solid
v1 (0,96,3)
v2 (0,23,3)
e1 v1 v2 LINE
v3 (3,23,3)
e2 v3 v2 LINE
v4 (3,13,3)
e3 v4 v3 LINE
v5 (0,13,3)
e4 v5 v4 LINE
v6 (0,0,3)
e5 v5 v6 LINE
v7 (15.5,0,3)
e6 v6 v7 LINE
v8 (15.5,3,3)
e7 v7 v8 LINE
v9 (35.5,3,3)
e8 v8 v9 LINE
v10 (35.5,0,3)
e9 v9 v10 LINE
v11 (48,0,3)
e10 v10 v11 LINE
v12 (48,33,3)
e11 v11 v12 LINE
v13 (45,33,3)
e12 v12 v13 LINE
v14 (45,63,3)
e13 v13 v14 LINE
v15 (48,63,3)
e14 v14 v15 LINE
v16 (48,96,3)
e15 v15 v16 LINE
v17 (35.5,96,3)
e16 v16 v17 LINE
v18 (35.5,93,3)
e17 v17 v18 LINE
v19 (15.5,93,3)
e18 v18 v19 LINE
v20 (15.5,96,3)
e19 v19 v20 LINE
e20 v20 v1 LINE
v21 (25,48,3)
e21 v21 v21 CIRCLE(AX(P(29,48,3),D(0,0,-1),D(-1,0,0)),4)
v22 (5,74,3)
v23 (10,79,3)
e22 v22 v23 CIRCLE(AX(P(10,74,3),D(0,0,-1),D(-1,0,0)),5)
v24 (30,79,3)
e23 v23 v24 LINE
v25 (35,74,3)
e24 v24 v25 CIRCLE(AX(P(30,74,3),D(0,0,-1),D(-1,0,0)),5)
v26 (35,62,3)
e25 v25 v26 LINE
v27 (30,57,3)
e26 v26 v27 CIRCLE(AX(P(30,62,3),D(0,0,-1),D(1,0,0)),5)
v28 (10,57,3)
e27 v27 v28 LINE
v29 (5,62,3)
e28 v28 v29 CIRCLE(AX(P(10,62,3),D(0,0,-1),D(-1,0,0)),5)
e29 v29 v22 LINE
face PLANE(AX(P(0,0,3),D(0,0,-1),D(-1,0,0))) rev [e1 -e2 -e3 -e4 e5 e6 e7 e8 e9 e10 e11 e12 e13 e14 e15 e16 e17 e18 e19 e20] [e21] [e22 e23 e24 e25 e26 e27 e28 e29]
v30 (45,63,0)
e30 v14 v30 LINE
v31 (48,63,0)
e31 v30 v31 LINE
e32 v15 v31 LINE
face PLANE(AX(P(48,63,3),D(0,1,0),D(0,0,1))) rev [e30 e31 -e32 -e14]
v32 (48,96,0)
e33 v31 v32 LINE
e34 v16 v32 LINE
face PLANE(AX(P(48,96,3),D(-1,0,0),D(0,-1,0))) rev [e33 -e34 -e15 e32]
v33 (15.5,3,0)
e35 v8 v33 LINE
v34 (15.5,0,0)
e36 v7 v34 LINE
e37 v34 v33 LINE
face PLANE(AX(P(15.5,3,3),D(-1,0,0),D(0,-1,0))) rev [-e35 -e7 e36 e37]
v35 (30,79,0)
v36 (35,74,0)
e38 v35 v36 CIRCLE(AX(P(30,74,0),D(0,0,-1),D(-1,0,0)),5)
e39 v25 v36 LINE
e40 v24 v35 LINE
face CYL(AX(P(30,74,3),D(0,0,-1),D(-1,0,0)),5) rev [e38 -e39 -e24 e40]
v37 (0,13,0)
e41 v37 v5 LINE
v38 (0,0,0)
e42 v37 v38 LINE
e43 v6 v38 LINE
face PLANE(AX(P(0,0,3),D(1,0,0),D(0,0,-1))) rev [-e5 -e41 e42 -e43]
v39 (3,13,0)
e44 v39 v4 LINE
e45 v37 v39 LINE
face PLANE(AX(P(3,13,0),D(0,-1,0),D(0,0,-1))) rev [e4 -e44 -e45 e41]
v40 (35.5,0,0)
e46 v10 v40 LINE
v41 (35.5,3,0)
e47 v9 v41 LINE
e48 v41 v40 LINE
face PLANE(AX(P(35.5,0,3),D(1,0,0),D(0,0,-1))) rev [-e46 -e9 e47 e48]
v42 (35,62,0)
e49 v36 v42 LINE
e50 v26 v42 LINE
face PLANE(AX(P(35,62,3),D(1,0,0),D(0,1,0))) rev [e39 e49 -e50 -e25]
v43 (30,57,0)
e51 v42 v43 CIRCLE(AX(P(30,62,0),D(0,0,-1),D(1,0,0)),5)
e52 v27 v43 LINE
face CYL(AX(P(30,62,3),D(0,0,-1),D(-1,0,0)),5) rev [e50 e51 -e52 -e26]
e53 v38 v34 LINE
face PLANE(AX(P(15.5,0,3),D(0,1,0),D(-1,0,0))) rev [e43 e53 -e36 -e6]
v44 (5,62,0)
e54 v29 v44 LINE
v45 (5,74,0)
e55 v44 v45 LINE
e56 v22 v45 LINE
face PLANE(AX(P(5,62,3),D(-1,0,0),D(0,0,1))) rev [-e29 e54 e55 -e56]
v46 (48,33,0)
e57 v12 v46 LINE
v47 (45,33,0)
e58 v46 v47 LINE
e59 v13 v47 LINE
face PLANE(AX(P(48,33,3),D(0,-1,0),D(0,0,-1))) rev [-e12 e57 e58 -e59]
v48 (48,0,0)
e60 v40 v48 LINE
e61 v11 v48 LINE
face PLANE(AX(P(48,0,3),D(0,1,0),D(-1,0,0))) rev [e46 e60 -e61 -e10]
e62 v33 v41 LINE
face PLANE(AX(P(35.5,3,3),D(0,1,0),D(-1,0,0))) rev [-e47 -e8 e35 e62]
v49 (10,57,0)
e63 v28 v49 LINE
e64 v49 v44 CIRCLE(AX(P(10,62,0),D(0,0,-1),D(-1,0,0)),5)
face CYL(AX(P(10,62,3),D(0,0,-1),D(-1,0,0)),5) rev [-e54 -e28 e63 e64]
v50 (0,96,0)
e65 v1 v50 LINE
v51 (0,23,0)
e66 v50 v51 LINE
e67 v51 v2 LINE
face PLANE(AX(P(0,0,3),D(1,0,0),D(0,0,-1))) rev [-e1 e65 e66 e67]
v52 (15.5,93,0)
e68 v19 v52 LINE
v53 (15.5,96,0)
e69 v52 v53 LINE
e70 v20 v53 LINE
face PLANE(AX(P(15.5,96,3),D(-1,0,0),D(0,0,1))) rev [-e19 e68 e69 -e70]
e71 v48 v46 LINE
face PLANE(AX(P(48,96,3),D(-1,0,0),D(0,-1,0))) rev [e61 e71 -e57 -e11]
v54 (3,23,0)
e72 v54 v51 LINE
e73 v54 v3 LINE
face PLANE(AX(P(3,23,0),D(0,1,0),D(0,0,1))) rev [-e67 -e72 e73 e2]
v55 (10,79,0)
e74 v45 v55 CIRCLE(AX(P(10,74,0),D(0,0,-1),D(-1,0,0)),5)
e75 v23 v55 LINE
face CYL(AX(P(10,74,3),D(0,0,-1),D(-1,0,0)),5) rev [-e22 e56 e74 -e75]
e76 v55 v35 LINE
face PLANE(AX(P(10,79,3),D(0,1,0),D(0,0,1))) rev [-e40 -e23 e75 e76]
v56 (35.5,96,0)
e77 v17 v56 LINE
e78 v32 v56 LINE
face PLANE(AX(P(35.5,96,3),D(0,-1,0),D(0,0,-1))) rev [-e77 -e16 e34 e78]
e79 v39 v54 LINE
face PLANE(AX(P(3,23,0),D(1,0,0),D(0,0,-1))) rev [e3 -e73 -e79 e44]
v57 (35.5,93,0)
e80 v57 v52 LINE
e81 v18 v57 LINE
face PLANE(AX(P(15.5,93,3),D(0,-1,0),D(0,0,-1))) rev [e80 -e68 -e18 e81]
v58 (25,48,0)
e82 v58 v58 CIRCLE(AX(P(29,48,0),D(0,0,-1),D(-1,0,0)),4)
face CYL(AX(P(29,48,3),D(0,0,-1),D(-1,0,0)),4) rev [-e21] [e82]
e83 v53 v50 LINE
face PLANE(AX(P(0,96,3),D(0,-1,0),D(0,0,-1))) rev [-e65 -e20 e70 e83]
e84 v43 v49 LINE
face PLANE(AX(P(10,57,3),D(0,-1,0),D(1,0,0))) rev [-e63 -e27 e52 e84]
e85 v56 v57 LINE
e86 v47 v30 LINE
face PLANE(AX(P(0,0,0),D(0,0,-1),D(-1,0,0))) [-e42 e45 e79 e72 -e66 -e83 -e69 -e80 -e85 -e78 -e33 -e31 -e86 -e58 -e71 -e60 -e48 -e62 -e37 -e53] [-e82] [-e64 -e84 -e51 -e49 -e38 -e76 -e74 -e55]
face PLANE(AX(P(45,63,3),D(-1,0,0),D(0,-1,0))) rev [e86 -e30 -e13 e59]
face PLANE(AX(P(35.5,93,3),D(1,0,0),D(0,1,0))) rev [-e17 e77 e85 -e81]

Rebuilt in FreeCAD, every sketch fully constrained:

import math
import FreeCAD as App
import Part
import Sketcher

V = App.Vector

doc = App.newDocument("Part")
body = doc.addObject("PartDesign::Body", "Body")

sketch1 = body.newObject("Sketcher::SketchObject", "Sketch")
sketch1.AttachmentSupport = (doc.getObject("XY_Plane"), [""])
sketch1.MapMode = "FlatFace"
sketch1.addGeometry(Part.LineSegment(V(0, 96, 0), V(0, 0, 0)), False)
sketch1.addGeometry(Part.LineSegment(V(0, 0, 0), V(15.5, 0, 0)), False)
sketch1.addGeometry(Part.LineSegment(V(15.5, 0, 0), V(15.5, 3, 0)), False)
sketch1.addGeometry(Part.LineSegment(V(15.5, 3, 0), V(35.5, 3, 0)), False)
sketch1.addGeometry(Part.LineSegment(V(35.5, 3, 0), V(35.5, 0, 0)), False)
sketch1.addGeometry(Part.LineSegment(V(35.5, 0, 0), V(48, 0, 0)), False)
sketch1.addGeometry(Part.LineSegment(V(48, 0, 0), V(48, 96, 0)), False)
sketch1.addGeometry(Part.LineSegment(V(48, 96, 0), V(35.5, 96, 0)), False)
sketch1.addGeometry(Part.LineSegment(V(35.5, 96, 0), V(35.5, 93, 0)), False)
sketch1.addGeometry(Part.LineSegment(V(35.5, 93, 0), V(15.5, 93, 0)), False)
sketch1.addGeometry(Part.LineSegment(V(15.5, 93, 0), V(15.5, 96, 0)), False)
sketch1.addGeometry(Part.LineSegment(V(15.5, 96, 0), V(0, 96, 0)), False)
sketch1.addConstraint(Sketcher.Constraint("Coincident", 0, 2, 1, 1))
sketch1.addConstraint(Sketcher.Constraint("Coincident", 1, 2, 2, 1))
sketch1.addConstraint(Sketcher.Constraint("Coincident", 2, 2, 3, 1))
sketch1.addConstraint(Sketcher.Constraint("Coincident", 3, 2, 4, 1))
sketch1.addConstraint(Sketcher.Constraint("Coincident", 4, 2, 5, 1))
sketch1.addConstraint(Sketcher.Constraint("Coincident", 5, 2, 6, 1))
sketch1.addConstraint(Sketcher.Constraint("Coincident", 6, 2, 7, 1))
sketch1.addConstraint(Sketcher.Constraint("Coincident", 7, 2, 8, 1))
sketch1.addConstraint(Sketcher.Constraint("Coincident", 8, 2, 9, 1))
sketch1.addConstraint(Sketcher.Constraint("Coincident", 9, 2, 10, 1))
sketch1.addConstraint(Sketcher.Constraint("Coincident", 10, 2, 11, 1))
sketch1.addConstraint(Sketcher.Constraint("Coincident", 11, 2, 0, 1))
sketch1.addConstraint(Sketcher.Constraint("Vertical", 0))
sketch1.addConstraint(Sketcher.Constraint("Horizontal", 1))
sketch1.addConstraint(Sketcher.Constraint("Vertical", 2))
sketch1.addConstraint(Sketcher.Constraint("Horizontal", 3))
sketch1.addConstraint(Sketcher.Constraint("Vertical", 4))
sketch1.addConstraint(Sketcher.Constraint("Horizontal", 5))
sketch1.addConstraint(Sketcher.Constraint("Vertical", 6))
sketch1.addConstraint(Sketcher.Constraint("Horizontal", 7))
sketch1.addConstraint(Sketcher.Constraint("Vertical", 8))
sketch1.addConstraint(Sketcher.Constraint("Horizontal", 9))
sketch1.addConstraint(Sketcher.Constraint("Vertical", 10))
sketch1.addConstraint(Sketcher.Constraint("Horizontal", 11))
sketch1.addConstraint(Sketcher.Constraint("Coincident", 0, 2, -1, 1))
sketch1.addConstraint(Sketcher.Constraint("PointOnObject", 4, 2, -1))
sketch1.addConstraint(Sketcher.Constraint("Horizontal", 7, 2, 10, 2))
sketch1.addConstraint(Sketcher.Constraint("Vertical", 4, 2, 7, 2))
sketch1.addConstraint(Sketcher.Constraint("Vertical", 2, 2, 9, 2))
sketch1.addConstraint(Sketcher.Constraint("Equal", 4, 8))
sketch1.addConstraint(Sketcher.Constraint("DistanceX", 3, 1, 3, 2, 20.0))
sketch1.addConstraint(Sketcher.Constraint("DistanceY", 0, 2, 0, 1, 96.0))
sketch1.addConstraint(Sketcher.Constraint("DistanceY", 2, 1, 2, 2, 3.0))
sketch1.addConstraint(Sketcher.Constraint("DistanceX", 1, 1, 1, 2, 15.5))
sketch1.addConstraint(Sketcher.Constraint("DistanceX", 5, 1, 5, 2, 12.5))
pad1 = body.newObject("PartDesign::Pad", "Pad")
pad1.Profile = sketch1
pad1.Length = 3

sketch2 = body.newObject("Sketcher::SketchObject", "Sketch001")
sketch2.AttachmentSupport = (doc.getObject("XY_Plane"), [""])
sketch2.MapMode = "FlatFace"
sketch2.AttachmentOffset = App.Placement(V(0, 0, 3), App.Rotation())
sketch2.addGeometry(Part.LineSegment(V(0, 23, 0), V(0, 13, 0)), False)
sketch2.addGeometry(Part.LineSegment(V(0, 13, 0), V(3, 13, 0)), False)
sketch2.addGeometry(Part.LineSegment(V(3, 13, 0), V(3, 23, 0)), False)
sketch2.addGeometry(Part.LineSegment(V(3, 23, 0), V(0, 23, 0)), False)
sketch2.addConstraint(Sketcher.Constraint("Coincident", 0, 2, 1, 1))
sketch2.addConstraint(Sketcher.Constraint("Coincident", 1, 2, 2, 1))
sketch2.addConstraint(Sketcher.Constraint("Coincident", 2, 2, 3, 1))
sketch2.addConstraint(Sketcher.Constraint("Coincident", 3, 2, 0, 1))
sketch2.addConstraint(Sketcher.Constraint("Vertical", 0))
sketch2.addConstraint(Sketcher.Constraint("Horizontal", 1))
sketch2.addConstraint(Sketcher.Constraint("Vertical", 2))
sketch2.addConstraint(Sketcher.Constraint("Horizontal", 3))
sketch2.addConstraint(Sketcher.Constraint("PointOnObject", 0, 2, -2))
sketch2.addConstraint(Sketcher.Constraint("DistanceX", 1, 1, 1, 2, 3.0))
sketch2.addConstraint(Sketcher.Constraint("DistanceY", 0, 2, 0, 1, 10.0))
sketch2.addConstraint(Sketcher.Constraint("DistanceY", -1, 1, 0, 2, 13.0))
pocket1 = body.newObject("PartDesign::Pocket", "Pocket")
pocket1.Profile = sketch2
pocket1.Type = "ThroughAll"

sketch3 = body.newObject("Sketcher::SketchObject", "Sketch002")
sketch3.AttachmentSupport = (doc.getObject("XY_Plane"), [""])
sketch3.MapMode = "FlatFace"
sketch3.addGeometry(Part.Circle(V(29, 48, 0), V(0, 0, 1), 4), False)
sketch3.addConstraint(Sketcher.Constraint("Diameter", 0, 8.0))
sketch3.addConstraint(Sketcher.Constraint("DistanceX", -1, 1, 0, 3, 29.0))
sketch3.addConstraint(Sketcher.Constraint("DistanceY", -1, 1, 0, 3, 48.0))
pocket2 = body.newObject("PartDesign::Pocket", "Pocket001")
pocket2.Profile = sketch3
pocket2.Type = "ThroughAll"
pocket2.Reversed = True

sketch4 = body.newObject("Sketcher::SketchObject", "Sketch003")
sketch4.AttachmentSupport = (doc.getObject("XY_Plane"), [""])
sketch4.MapMode = "FlatFace"
sketch4.addGeometry(Part.LineSegment(V(48, 63, 0), V(48, 33, 0)), False)
sketch4.addGeometry(Part.LineSegment(V(48, 33, 0), V(45, 33, 0)), False)
sketch4.addGeometry(Part.LineSegment(V(45, 33, 0), V(45, 63, 0)), False)
sketch4.addGeometry(Part.LineSegment(V(45, 63, 0), V(48, 63, 0)), False)
sketch4.addConstraint(Sketcher.Constraint("Coincident", 0, 2, 1, 1))
sketch4.addConstraint(Sketcher.Constraint("Coincident", 1, 2, 2, 1))
sketch4.addConstraint(Sketcher.Constraint("Coincident", 2, 2, 3, 1))
sketch4.addConstraint(Sketcher.Constraint("Coincident", 3, 2, 0, 1))
sketch4.addConstraint(Sketcher.Constraint("Vertical", 0))
sketch4.addConstraint(Sketcher.Constraint("Horizontal", 1))
sketch4.addConstraint(Sketcher.Constraint("Vertical", 2))
sketch4.addConstraint(Sketcher.Constraint("Horizontal", 3))
sketch4.addConstraint(Sketcher.Constraint("DistanceX", 1, 2, 1, 1, 3.0))
sketch4.addConstraint(Sketcher.Constraint("DistanceY", 0, 2, 0, 1, 30.0))
sketch4.addConstraint(Sketcher.Constraint("DistanceX", -1, 1, 0, 2, 48.0))
sketch4.addConstraint(Sketcher.Constraint("DistanceY", -1, 1, 0, 2, 33.0))
pocket3 = body.newObject("PartDesign::Pocket", "Pocket002")
pocket3.Profile = sketch4
pocket3.Type = "ThroughAll"
pocket3.Reversed = True

sketch5 = body.newObject("Sketcher::SketchObject", "Sketch004")
sketch5.AttachmentSupport = (doc.getObject("XY_Plane"), [""])
sketch5.MapMode = "FlatFace"
sketch5.addGeometry(Part.LineSegment(V(30, 57, 0), V(10, 57, 0)), False)
sketch5.addGeometry(Part.ArcOfCircle(Part.Circle(V(10, 62, 0), V(0, 0, 1), 5), math.radians(180), math.radians(270)), False)
sketch5.addGeometry(Part.LineSegment(V(5, 62, 0), V(5, 74, 0)), False)
sketch5.addGeometry(Part.ArcOfCircle(Part.Circle(V(10, 74, 0), V(0, 0, 1), 5), math.radians(90), math.radians(180)), False)
sketch5.addGeometry(Part.LineSegment(V(10, 79, 0), V(30, 79, 0)), False)
sketch5.addGeometry(Part.ArcOfCircle(Part.Circle(V(30, 74, 0), V(0, 0, 1), 5), math.radians(0), math.radians(90)), False)
sketch5.addGeometry(Part.LineSegment(V(35, 74, 0), V(35, 62, 0)), False)
sketch5.addGeometry(Part.ArcOfCircle(Part.Circle(V(30, 62, 0), V(0, 0, 1), 5), math.radians(-90), math.radians(0)), False)
sketch5.addConstraint(Sketcher.Constraint("Tangent", 0, 2, 1, 2))
sketch5.addConstraint(Sketcher.Constraint("Tangent", 1, 1, 2, 1))
sketch5.addConstraint(Sketcher.Constraint("Tangent", 2, 2, 3, 2))
sketch5.addConstraint(Sketcher.Constraint("Tangent", 3, 1, 4, 1))
sketch5.addConstraint(Sketcher.Constraint("Tangent", 4, 2, 5, 2))
sketch5.addConstraint(Sketcher.Constraint("Tangent", 5, 1, 6, 1))
sketch5.addConstraint(Sketcher.Constraint("Tangent", 6, 2, 7, 2))
sketch5.addConstraint(Sketcher.Constraint("Tangent", 7, 1, 0, 1))
sketch5.addConstraint(Sketcher.Constraint("Horizontal", 0))
sketch5.addConstraint(Sketcher.Constraint("Vertical", 2))
sketch5.addConstraint(Sketcher.Constraint("Horizontal", 4))
sketch5.addConstraint(Sketcher.Constraint("Vertical", 6))
sketch5.addConstraint(Sketcher.Constraint("Equal", 1, 3))
sketch5.addConstraint(Sketcher.Constraint("Equal", 3, 5))
sketch5.addConstraint(Sketcher.Constraint("Equal", 5, 7))
sketch5.addConstraint(Sketcher.Constraint("Radius", 1, 5.0))
sketch5.addConstraint(Sketcher.Constraint("DistanceX", 0, 2, 0, 1, 20.0))
sketch5.addConstraint(Sketcher.Constraint("DistanceY", 2, 1, 2, 2, 12.0))
sketch5.addConstraint(Sketcher.Constraint("DistanceX", -1, 1, 1, 3, 10.0))
sketch5.addConstraint(Sketcher.Constraint("DistanceY", -1, 1, 1, 3, 62.0))
pocket4 = body.newObject("PartDesign::Pocket", "Pocket003")
pocket4.Profile = sketch5
pocket4.Type = "ThroughAll"
pocket4.Reversed = True

doc.recompute()
